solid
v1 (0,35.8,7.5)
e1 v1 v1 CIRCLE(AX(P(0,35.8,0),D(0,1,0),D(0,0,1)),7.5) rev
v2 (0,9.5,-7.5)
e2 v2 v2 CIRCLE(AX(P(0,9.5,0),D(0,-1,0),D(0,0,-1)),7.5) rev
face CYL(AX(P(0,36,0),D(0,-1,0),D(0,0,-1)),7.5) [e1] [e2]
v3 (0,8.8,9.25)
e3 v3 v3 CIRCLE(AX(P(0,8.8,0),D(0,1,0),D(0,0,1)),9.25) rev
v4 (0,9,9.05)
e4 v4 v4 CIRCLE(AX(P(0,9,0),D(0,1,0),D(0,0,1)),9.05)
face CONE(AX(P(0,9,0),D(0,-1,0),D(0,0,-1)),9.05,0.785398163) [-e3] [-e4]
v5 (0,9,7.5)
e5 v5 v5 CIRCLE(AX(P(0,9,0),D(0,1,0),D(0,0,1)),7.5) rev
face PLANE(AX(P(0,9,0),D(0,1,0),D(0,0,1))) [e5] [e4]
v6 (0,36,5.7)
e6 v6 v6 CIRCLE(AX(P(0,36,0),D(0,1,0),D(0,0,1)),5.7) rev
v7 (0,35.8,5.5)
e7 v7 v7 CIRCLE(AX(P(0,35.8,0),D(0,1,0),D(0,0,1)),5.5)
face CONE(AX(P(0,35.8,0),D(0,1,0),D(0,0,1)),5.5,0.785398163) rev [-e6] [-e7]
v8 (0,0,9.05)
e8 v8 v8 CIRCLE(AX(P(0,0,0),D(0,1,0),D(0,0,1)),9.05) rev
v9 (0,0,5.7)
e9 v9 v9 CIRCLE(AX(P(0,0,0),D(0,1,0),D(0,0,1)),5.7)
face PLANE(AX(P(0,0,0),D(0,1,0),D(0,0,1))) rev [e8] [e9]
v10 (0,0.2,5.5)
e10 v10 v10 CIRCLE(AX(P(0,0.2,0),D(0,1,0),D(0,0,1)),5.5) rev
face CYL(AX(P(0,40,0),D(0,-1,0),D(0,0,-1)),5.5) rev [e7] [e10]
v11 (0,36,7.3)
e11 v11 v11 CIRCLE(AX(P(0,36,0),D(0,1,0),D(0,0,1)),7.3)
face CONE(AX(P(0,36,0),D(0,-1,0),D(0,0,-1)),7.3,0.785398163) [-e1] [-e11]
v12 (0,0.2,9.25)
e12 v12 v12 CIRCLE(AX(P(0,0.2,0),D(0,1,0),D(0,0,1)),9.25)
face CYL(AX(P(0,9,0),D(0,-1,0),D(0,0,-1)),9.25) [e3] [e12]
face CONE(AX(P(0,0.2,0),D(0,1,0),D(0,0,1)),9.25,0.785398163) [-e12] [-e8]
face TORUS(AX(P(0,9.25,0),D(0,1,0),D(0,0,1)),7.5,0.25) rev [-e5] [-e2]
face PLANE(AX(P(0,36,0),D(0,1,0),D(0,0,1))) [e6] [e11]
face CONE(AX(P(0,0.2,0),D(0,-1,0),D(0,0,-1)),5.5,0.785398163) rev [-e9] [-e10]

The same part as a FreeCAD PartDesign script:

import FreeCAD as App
import Part
import Sketcher

V = App.Vector


def edges_at(feature, points):
    """Names of the edges that pass closest to the given points."""
    edges = feature.Shape.Edges
    near = lambda p: min(range(len(edges)), key=lambda i: edges[i].distToShape(Part.Vertex(*p))[0])
    return sorted({f"Edge{near(p) + 1}" for p in points})

doc = App.newDocument("Part")
params = doc.addObject("Spreadsheet::Sheet", "Params")
for row, (alias, value) in enumerate([
    ("sketch1_diameter", "18.5 mm"),
    ("pad1_length", "9 mm"),
    ("sketch2_diameter", "15 mm"),
    ("pad2_length", "27 mm"),
    ("sketch3_diameter", "11 mm"),
    ("pocket1_length", "40 mm"),
    ("chamfer_size", "0.2 mm"),
    ("sketch4_diameter", "0.5 mm"),
    ("groove_angle", "360 deg"),
], start=1):
    params.set(f"A{row}", alias)
    params.set(f"B{row}", "=" + value)
    params.setAlias(f"B{row}", alias)

body = doc.addObject("PartDesign::Body", "Body")

# Sketch on XZ plane
sketch1 = doc.addObject("Sketcher::SketchObject", "Sketch")
body.addObject(sketch1)
sketch1.AttachmentSupport = (doc.XZ_Plane, [""])
sketch1.MapMode = "FlatFace"
sketch1.addGeometry(Part.Circle(V(0, 0, 0), V(0, 0, 1), 9), False)
sketch1.addConstraint([
    Sketcher.Constraint("Coincident", 0, 3, -1, 1),
    Sketcher.Constraint("Diameter", 0, 18.5),
])
sketch1.setExpression("Constraints[1]", "Params.sketch1_diameter")
pad1 = doc.addObject("PartDesign::Pad", "Pad")
body.addObject(pad1)
pad1.Profile = sketch1
pad1.setExpression("Length", "Params.pad1_length")
pad1.Reversed = True

# Sketch on XZ plane
sketch2 = doc.addObject("Sketcher::SketchObject", "Sketch001")
body.addObject(sketch2)
sketch2.AttachmentSupport = (doc.XZ_Plane, [""])
sketch2.MapMode = "FlatFace"
sketch2.AttachmentOffset = App.Placement(V(0, 0, -9), App.Rotation())
sketch2.addGeometry(Part.Circle(V(0, 0, 0), V(0, 0, 1), 8), False)
sketch2.addConstraint([
    Sketcher.Constraint("Coincident", 0, 3, -1, 1),
    Sketcher.Constraint("Diameter", 0, 15.0),
])
sketch2.setExpression("Constraints[1]", "Params.sketch2_diameter")
pad2 = doc.addObject("PartDesign::Pad", "Pad001")
body.addObject(pad2)
pad2.Profile = sketch2
pad2.setExpression("Length", "Params.pad2_length")
pad2.Reversed = True

# Sketch on XZ plane
sketch3 = doc.addObject("Sketcher::SketchObject", "Sketch002")
body.addObject(sketch3)
sketch3.AttachmentSupport = (doc.XZ_Plane, [""])
sketch3.MapMode = "FlatFace"
sketch3.addGeometry(Part.Circle(V(0, 0, 0), V(0, 0, 1), 6), False)
sketch3.addConstraint([
    Sketcher.Constraint("Coincident", 0, 3, -1, 1),
    Sketcher.Constraint("Diameter", 0, 11.0),
])
sketch3.setExpression("Constraints[1]", "Params.sketch3_diameter")
pocket1 = doc.addObject("PartDesign::Pocket", "Pocket")
body.addObject(pocket1)
pocket1.Profile = sketch3
pocket1.setExpression("Length", "Params.pocket1_length")
doc.recompute()

chamfer = doc.addObject("PartDesign::Chamfer", "Chamfer")
body.addObject(chamfer)
chamfer.Base = (pocket1, edges_at(pocket1, [
    (-5.5, 36, 0),
    (-5.5, 0, 0),
    (-9.25, 0, 0),
    (-9.25, 9, 0),
    (-7.5, 36, 0),
]))
chamfer.setExpression("Size", "Params.chamfer_size")

# Sketch on YZ plane
sketch4 = doc.addObject("Sketcher::SketchObject", "Sketch003")
body.addObject(sketch4)
sketch4.AttachmentSupport = (doc.YZ_Plane, [""])
sketch4.MapMode = "FlatFace"
sketch4.addGeometry(Part.Circle(V(9.25, 7.5, 0), V(0, 0, 1), 0.25), False)
sketch4.addConstraint([
    Sketcher.Constraint("Diameter", 0, 0.5),
    Sketcher.Constraint("DistanceY", -1, 1, 0, 3, 7.5),
    Sketcher.Constraint("DistanceX", -1, 1, 0, 3, 9.25),
])
sketch4.setExpression("Constraints[0]", "Params.sketch4_diameter")
groove = doc.addObject("PartDesign::Groove", "Groove")
body.addObject(groove)
groove.Profile = sketch4
groove.ReferenceAxis = (sketch4, ["H_Axis"])
groove.setExpression("Angle", "Params.groove_angle")

doc.recompute()
